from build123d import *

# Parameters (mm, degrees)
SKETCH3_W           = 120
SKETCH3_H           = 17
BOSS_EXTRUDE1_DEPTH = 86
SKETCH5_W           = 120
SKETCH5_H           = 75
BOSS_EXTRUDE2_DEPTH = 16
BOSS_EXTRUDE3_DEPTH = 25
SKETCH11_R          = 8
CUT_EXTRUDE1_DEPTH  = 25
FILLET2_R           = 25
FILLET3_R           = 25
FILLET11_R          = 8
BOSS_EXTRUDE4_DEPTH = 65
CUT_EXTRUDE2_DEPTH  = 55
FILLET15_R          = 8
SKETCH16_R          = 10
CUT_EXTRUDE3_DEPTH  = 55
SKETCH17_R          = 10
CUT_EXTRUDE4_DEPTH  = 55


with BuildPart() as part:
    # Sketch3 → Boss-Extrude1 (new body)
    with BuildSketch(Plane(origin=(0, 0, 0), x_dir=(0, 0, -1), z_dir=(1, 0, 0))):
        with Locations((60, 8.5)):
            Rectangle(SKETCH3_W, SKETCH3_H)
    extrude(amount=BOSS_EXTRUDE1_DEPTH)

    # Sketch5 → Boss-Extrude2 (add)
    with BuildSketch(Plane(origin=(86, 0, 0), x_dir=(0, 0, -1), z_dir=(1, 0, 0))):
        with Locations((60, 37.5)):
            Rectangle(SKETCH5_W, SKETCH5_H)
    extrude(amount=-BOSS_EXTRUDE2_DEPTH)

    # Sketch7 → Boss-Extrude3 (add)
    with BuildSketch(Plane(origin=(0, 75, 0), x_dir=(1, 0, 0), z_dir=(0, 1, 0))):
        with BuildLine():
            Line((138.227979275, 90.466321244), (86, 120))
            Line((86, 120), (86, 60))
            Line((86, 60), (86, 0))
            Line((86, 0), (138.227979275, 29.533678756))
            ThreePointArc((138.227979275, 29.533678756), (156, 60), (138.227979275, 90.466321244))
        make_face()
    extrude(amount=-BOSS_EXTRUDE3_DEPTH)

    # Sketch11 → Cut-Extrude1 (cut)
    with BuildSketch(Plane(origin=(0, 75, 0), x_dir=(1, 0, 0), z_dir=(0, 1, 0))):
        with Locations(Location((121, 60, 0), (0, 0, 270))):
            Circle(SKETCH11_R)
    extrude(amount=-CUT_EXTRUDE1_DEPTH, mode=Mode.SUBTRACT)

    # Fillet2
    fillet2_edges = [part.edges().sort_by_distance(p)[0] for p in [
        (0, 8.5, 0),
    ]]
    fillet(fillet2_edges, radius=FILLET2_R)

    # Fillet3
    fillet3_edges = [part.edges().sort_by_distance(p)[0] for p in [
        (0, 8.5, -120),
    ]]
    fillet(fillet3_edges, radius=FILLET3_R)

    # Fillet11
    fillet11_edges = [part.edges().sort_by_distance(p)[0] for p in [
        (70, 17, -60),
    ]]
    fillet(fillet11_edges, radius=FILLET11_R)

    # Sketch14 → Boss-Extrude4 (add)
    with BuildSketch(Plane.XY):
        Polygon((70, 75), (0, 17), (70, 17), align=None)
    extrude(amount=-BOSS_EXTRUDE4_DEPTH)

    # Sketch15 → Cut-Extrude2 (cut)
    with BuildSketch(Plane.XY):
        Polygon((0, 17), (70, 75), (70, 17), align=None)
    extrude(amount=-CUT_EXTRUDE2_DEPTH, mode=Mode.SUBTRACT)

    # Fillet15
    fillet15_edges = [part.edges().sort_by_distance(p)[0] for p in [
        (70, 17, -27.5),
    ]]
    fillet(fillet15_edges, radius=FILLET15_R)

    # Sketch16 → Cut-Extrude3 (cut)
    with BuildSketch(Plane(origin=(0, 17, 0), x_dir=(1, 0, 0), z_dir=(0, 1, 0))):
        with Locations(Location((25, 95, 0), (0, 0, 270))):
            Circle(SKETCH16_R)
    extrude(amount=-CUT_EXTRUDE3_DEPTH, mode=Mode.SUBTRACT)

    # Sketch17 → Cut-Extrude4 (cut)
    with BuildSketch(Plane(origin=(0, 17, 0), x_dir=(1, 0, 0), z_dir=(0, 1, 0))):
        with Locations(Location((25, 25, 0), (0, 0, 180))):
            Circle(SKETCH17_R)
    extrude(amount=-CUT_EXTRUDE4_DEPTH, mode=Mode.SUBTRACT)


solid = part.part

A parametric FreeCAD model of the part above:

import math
import FreeCAD as App
import Part
import Sketcher


def edges_at(feature, points):
    """Names of the edges that pass closest to the given points."""
    edges = feature.Shape.Edges
    near = lambda p: min(range(len(edges)), key=lambda i: edges[i].distToShape(Part.Vertex(*p))[0])
    return sorted({f"Edge{near(p) + 1}" for p in points})


def add_polygon(sketch, points):
    """Adds a closed chain of lines whose ends are joined by coincident constraints."""
    first, n = sketch.GeometryCount, len(points)
    for a, b in zip(points, points[1:] + points[:1]):
        sketch.addGeometry(Part.LineSegment(App.Vector(*a, 0), App.Vector(*b, 0)), False)
    for i in range(n):
        sketch.addConstraint(Sketcher.Constraint("Coincident", first + i, 2, first + (i + 1) % n, 1))

doc = App.newDocument("Part")
params = doc.addObject("Spreadsheet::Sheet", "Params")
for row, (alias, value) in enumerate([
    ("sketch1_width", "17 mm"),
    ("sketch1_height", "120 mm"),
    ("pad1_length", "86 mm"),
    ("sketch2_width", "75 mm"),
    ("sketch2_height", "120 mm"),
    ("pad2_length", "16 mm"),
    ("sketch3_radius", "35 mm"),
    ("sketch3_height", "120 mm"),
    ("sketch3_length", "60 mm"),
    ("pad3_length", "25 mm"),
    ("sketch4_diameter", "16 mm"),
    ("pocket1_length", "25 mm"),
    ("fillet_radius", "25 mm"),
    ("fillet2_radius", "25 mm"),
    ("fillet3_radius", "8 mm"),
    ("sketch5_width", "70 mm"),
    ("sketch5_height", "58 mm"),
    ("pad4_length", "65 mm"),
    ("sketch6_width", "70 mm"),
    ("sketch6_height", "58 mm"),
    ("pocket2_length", "55 mm"),
    ("fillet4_radius", "8 mm"),
    ("sketch7_diameter", "20 mm"),
    ("pocket3_length", "55 mm"),
    ("sketch8_diameter", "20 mm"),
    ("pocket4_length", "55 mm"),
], start=1):
    params.set(f"A{row}", alias)
    params.set(f"B{row}", "=" + value)
    params.setAlias(f"B{row}", alias)

body = doc.addObject("PartDesign::Body", "Body")

sketch1 = body.newObject("Sketcher::SketchObject", "Sketch")
sketch1.AttachmentSupport = (doc.getObject("YZ_Plane"), [""])
sketch1.MapMode = "FlatFace"
add_polygon(sketch1, [(17, 0), (0, 0), (0, -120), (17, -120)])
sketch1.addConstraint([
    Sketcher.Constraint("Horizontal", 0),
    Sketcher.Constraint("Vertical", 1),
    Sketcher.Constraint("Horizontal", 2),
    Sketcher.Constraint("Vertical", 3),
    Sketcher.Constraint("Coincident", 0, 2, -1, 1),
    Sketcher.Constraint("DistanceX", 0, 2, 0, 1, 17.0),
    Sketcher.Constraint("DistanceY", 1, 2, 1, 1, 120.0),
])
sketch1.setExpression("Constraints[9]", "Params.sketch1_width")
sketch1.setExpression("Constraints[10]", "Params.sketch1_height")
pad1 = body.newObject("PartDesign::Pad", "Pad")
pad1.Profile = sketch1
pad1.setExpression("Length", "Params.pad1_length")

sketch2 = body.newObject("Sketcher::SketchObject", "Sketch001")
sketch2.AttachmentSupport = (doc.getObject("YZ_Plane"), [""])
sketch2.MapMode = "FlatFace"
sketch2.AttachmentOffset = App.Placement(App.Vector(0, 0, 86), App.Rotation())
add_polygon(sketch2, [(75, 0), (0, 0), (0, -120), (75, -120)])
sketch2.addConstraint([
    Sketcher.Constraint("Horizontal", 0),
    Sketcher.Constraint("Vertical", 1),
    Sketcher.Constraint("Horizontal", 2),
    Sketcher.Constraint("Vertical", 3),
    Sketcher.Constraint("Coincident", 0, 2, -1, 1),
    Sketcher.Constraint("DistanceX", 0, 2, 0, 1, 75.0),
    Sketcher.Constraint("DistanceY", 1, 2, 1, 1, 120.0),
])
sketch2.setExpression("Constraints[9]", "Params.sketch2_width")
sketch2.setExpression("Constraints[10]", "Params.sketch2_height")
pad2 = body.newObject("PartDesign::Pad", "Pad001")
pad2.Profile = sketch2
pad2.setExpression("Length", "Params.pad2_length")
pad2.Reversed = True

sketch3 = body.newObject("Sketcher::SketchObject", "Sketch002")
sketch3.AttachmentSupport = (doc.getObject("XZ_Plane"), [""])
sketch3.MapMode = "FlatFace"
sketch3.AttachmentOffset = App.Placement(App.Vector(0, 0, -75), App.Rotation())
sketch3.addGeometry([
    Part.LineSegment(App.Vector(138, -90, 0), App.Vector(86, -120, 0)),
    Part.LineSegment(App.Vector(86, -120, 0), App.Vector(86, 0, 0)),
    Part.LineSegment(App.Vector(86, 0, 0), App.Vector(138, -30, 0)),
    Part.ArcOfCircle(Part.Circle(App.Vector(121, -60, 0), App.Vector(0, 0, 1), 35), math.radians(-61), math.radians(61)),
], False)
sketch3.addConstraint([
    Sketcher.Constraint("Coincident", 0, 2, 1, 1),
    Sketcher.Constraint("Coincident", 1, 2, 2, 1),
    Sketcher.Constraint("Tangent", 2, 2, 3, 2),
    Sketcher.Constraint("Tangent", 3, 1, 0, 1),
    Sketcher.Constraint("Vertical", 1),
    Sketcher.Constraint("PointOnObject", 1, 2, -1),
    Sketcher.Constraint("Vertical", 2, 2, 3, 1),
    Sketcher.Constraint("Radius", 3, 35.0),
    Sketcher.Constraint("DistanceY", 1, 1, 1, 2, 120.0),
    Sketcher.Constraint("Distance", 0, 60.0),
    Sketcher.Constraint("DistanceX", -1, 1, 3, 3, 121.0),
])
sketch3.setExpression("Constraints[7]", "Params.sketch3_radius")
sketch3.setExpression("Constraints[8]", "Params.sketch3_height")
sketch3.setExpression("Constraints[9]", "Params.sketch3_length")
pad3 = body.newObject("PartDesign::Pad", "Pad002")
pad3.Profile = sketch3
pad3.setExpression("Length", "Params.pad3_length")

sketch4 = body.newObject("Sketcher::SketchObject", "Sketch003")
sketch4.AttachmentSupport = (doc.getObject("XZ_Plane"), [""])
sketch4.MapMode = "FlatFace"
sketch4.AttachmentOffset = App.Placement(App.Vector(0, 0, -75), App.Rotation())
sketch4.addGeometry(Part.Circle(App.Vector(121, -60, 0), App.Vector(0, 0, 1), 8), False)
sketch4.addConstraint([
    Sketcher.Constraint("Diameter", 0, 16.0),
    Sketcher.Constraint("DistanceX", -1, 1, 0, 3, 121.0),
    Sketcher.Constraint("DistanceY", 0, 3, -1, 1, 60.0),
])
sketch4.setExpression("Constraints[0]", "Params.sketch4_diameter")
pocket1 = body.newObject("PartDesign::Pocket", "Pocket")
pocket1.Profile = sketch4
pocket1.setExpression("Length", "Params.pocket1_length")
pocket1.Reversed = True
doc.recompute()

fillet = body.newObject("PartDesign::Fillet", "Fillet")
fillet.Base = (pocket1, edges_at(pocket1, [(0, 8.5, 0)]))
fillet.setExpression("Radius", "Params.fillet_radius")
doc.recompute()

fillet2 = body.newObject("PartDesign::Fillet", "Fillet001")
fillet2.Base = (fillet, edges_at(fillet, [(0, 8.5, -120)]))
fillet2.setExpression("Radius", "Params.fillet2_radius")
doc.recompute()

fillet3 = body.newObject("PartDesign::Fillet", "Fillet002")
fillet3.Base = (fillet2, edges_at(fillet2, [(70, 17, -60)]))
fillet3.setExpression("Radius", "Params.fillet3_radius")

sketch5 = body.newObject("Sketcher::SketchObject", "Sketch004")
sketch5.AttachmentSupport = (doc.getObject("XY_Plane"), [""])
sketch5.MapMode = "FlatFace"
add_polygon(sketch5, [(70, 75), (0, 17), (70, 17)])
sketch5.addConstraint([
    Sketcher.Constraint("Horizontal", 1),
    Sketcher.Constraint("Vertical", 2),
    Sketcher.Constraint("PointOnObject", 0, 2, -2),
    Sketcher.Constraint("DistanceX", 1, 1, 1, 2, 70.0),
    Sketcher.Constraint("DistanceY", 2, 1, 2, 2, 58.0),
    Sketcher.Constraint("DistanceY", -1, 1, 0, 2, 17.0),
])
sketch5.setExpression("Constraints[6]", "Params.sketch5_width")
sketch5.setExpression("Constraints[7]", "Params.sketch5_height")
pad4 = body.newObject("PartDesign::Pad", "Pad003")
pad4.Profile = sketch5
pad4.setExpression("Length", "Params.pad4_length")
pad4.Reversed = True

sketch6 = body.newObject("Sketcher::SketchObject", "Sketch005")
sketch6.AttachmentSupport = (doc.getObject("XY_Plane"), [""])
sketch6.MapMode = "FlatFace"
add_polygon(sketch6, [(70, 75), (0, 17), (70, 17)])
sketch6.addConstraint([
    Sketcher.Constraint("Horizontal", 1),
    Sketcher.Constraint("Vertical", 2),
    Sketcher.Constraint("PointOnObject", 0, 2, -2),
    Sketcher.Constraint("DistanceX", 1, 1, 1, 2, 70.0),
    Sketcher.Constraint("DistanceY", 2, 1, 2, 2, 58.0),
    Sketcher.Constraint("DistanceY", -1, 1, 0, 2, 17.0),
])
sketch6.setExpression("Constraints[6]", "Params.sketch6_width")
sketch6.setExpression("Constraints[7]", "Params.sketch6_height")
pocket2 = body.newObject("PartDesign::Pocket", "Pocket001")
pocket2.Profile = sketch6
pocket2.setExpression("Length", "Params.pocket2_length")
doc.recompute()

fillet4 = body.newObject("PartDesign::Fillet", "Fillet003")
fillet4.Base = (pocket2, edges_at(pocket2, [(70, 17, -27.5)]))
fillet4.setExpression("Radius", "Params.fillet4_radius")

sketch7 = body.newObject("Sketcher::SketchObject", "Sketch006")
sketch7.AttachmentSupport = (doc.getObject("XZ_Plane"), [""])
sketch7.MapMode = "FlatFace"
sketch7.AttachmentOffset = App.Placement(App.Vector(0, 0, -17), App.Rotation())
sketch7.addGeometry(Part.Circle(App.Vector(25, -95, 0), App.Vector(0, 0, 1), 10), False)
sketch7.addConstraint([
    Sketcher.Constraint("Diameter", 0, 20.0),
    Sketcher.Constraint("DistanceX", -1, 1, 0, 3, 25.0),
    Sketcher.Constraint("DistanceY", 0, 3, -1, 1, 95.0),
])
sketch7.setExpression("Constraints[0]", "Params.sketch7_diameter")
pocket3 = body.newObject("PartDesign::Pocket", "Pocket002")
pocket3.Profile = sketch7
pocket3.setExpression("Length", "Params.pocket3_length")
pocket3.Reversed = True

sketch8 = body.newObject("Sketcher::SketchObject", "Sketch007")
sketch8.AttachmentSupport = (doc.getObject("XZ_Plane"), [""])
sketch8.MapMode = "FlatFace"
sketch8.AttachmentOffset = App.Placement(App.Vector(0, 0, -17), App.Rotation())
sketch8.addGeometry(Part.Circle(App.Vector(25, -25, 0), App.Vector(0, 0, 1), 10), False)
sketch8.addConstraint([
    Sketcher.Constraint("Diameter", 0, 20.0),
    Sketcher.Constraint("DistanceX", -1, 1, 0, 3, 25.0),
    Sketcher.Constraint("DistanceY", 0, 3, -1, 1, 25.0),
])
sketch8.setExpression("Constraints[0]", "Params.sketch8_diameter")
pocket4 = body.newObject("PartDesign::Pocket", "Pocket003")
pocket4.Profile = sketch8
pocket4.setExpression("Length", "Params.pocket4_length")
pocket4.Reversed = True

doc.recompute()
